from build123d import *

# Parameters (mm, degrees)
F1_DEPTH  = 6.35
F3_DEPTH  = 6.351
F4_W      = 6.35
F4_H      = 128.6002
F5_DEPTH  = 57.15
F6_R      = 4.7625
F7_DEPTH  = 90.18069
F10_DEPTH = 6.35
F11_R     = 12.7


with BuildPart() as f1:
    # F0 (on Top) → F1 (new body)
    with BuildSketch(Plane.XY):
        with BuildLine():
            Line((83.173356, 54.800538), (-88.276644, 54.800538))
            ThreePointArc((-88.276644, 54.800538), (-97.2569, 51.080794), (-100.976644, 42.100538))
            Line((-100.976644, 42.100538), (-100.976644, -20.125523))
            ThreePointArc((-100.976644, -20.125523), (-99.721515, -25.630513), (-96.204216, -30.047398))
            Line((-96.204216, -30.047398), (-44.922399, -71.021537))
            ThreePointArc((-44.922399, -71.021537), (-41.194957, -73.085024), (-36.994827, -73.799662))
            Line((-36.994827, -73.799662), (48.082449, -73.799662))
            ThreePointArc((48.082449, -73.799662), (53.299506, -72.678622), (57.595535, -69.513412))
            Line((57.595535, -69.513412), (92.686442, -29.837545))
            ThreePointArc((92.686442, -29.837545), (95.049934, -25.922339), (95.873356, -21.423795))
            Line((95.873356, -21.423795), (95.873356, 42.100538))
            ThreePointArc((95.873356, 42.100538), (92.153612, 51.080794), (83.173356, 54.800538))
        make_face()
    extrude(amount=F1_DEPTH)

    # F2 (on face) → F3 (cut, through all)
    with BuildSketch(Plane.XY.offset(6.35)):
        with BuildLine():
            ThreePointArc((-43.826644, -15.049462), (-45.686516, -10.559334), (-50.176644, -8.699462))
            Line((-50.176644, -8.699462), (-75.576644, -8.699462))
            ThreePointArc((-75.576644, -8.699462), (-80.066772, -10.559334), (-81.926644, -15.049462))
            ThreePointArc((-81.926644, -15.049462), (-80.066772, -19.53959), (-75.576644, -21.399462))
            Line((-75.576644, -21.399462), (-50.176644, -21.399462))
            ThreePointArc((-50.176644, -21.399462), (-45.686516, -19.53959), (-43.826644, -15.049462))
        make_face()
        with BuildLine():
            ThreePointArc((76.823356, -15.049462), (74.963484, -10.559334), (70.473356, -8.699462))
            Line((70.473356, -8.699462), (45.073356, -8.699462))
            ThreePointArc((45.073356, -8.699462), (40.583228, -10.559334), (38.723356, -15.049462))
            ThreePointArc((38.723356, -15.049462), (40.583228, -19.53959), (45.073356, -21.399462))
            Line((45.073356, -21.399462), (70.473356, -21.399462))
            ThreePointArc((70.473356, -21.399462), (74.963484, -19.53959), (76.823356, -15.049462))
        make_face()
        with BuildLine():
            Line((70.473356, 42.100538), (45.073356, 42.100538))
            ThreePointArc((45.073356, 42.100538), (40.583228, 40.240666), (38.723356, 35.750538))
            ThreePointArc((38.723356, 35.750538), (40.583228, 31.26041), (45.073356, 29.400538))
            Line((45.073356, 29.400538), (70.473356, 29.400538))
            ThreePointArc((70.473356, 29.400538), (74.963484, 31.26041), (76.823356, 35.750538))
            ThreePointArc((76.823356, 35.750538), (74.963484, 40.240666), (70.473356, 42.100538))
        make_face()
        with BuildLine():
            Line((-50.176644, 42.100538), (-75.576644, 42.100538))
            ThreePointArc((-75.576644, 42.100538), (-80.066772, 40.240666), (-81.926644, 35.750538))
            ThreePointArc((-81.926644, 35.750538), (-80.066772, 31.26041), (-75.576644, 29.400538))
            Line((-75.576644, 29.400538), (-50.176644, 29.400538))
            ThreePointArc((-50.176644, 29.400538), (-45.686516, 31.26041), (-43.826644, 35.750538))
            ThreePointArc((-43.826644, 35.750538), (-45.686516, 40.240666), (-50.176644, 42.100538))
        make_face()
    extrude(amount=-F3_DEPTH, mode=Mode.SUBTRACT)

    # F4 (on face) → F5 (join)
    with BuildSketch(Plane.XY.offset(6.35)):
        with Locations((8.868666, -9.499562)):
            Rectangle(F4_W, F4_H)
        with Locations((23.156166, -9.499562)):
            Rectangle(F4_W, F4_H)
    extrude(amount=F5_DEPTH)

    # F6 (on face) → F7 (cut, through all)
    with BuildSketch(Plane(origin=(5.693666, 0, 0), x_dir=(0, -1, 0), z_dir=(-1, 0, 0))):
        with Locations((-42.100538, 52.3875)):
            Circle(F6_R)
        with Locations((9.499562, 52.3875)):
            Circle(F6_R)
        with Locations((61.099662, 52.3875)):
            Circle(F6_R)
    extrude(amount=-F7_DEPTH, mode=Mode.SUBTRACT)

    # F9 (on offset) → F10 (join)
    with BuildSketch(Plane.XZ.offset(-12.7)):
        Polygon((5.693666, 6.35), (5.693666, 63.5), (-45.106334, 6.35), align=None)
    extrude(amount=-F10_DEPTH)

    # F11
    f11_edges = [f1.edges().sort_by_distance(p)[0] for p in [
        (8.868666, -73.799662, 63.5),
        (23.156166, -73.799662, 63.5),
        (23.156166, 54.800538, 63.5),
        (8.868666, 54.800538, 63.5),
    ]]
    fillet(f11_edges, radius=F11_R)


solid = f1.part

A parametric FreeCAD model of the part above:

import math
import FreeCAD as App
import Part
import Sketcher
Q = App.Units.Quantity


def edges_at(feature, points):
    """Names of the edges that pass closest to the given points."""
    edges = feature.Shape.Edges
    near = lambda p: min(range(len(edges)), key=lambda i: edges[i].distToShape(Part.Vertex(*p))[0])
    return sorted({f"Edge{near(p) + 1}" for p in points})


def add_polygon(sketch, points):
    """Adds a closed chain of lines whose ends are joined by coincident constraints."""
    first, n = sketch.GeometryCount, len(points)
    for a, b in zip(points, points[1:] + points[:1]):
        sketch.addGeometry(Part.LineSegment(App.Vector(*a, 0), App.Vector(*b, 0)), False)
    for i in range(n):
        sketch.addConstraint(Sketcher.Constraint("Coincident", first + i, 2, first + (i + 1) % n, 1))

doc = App.newDocument("Part")
body = doc.addObject("PartDesign::Body", "Body")

sketch1 = body.newObject("Sketcher::SketchObject", "Sketch")
sketch1.AttachmentSupport = (doc.getObject("XY_Plane"), [""])
sketch1.MapMode = "FlatFace"
sketch1.addGeometry([
    Part.LineSegment(App.Vector(83.173356, 54.800538, 0), App.Vector(-88.276644, 54.800538, 0)),
    Part.ArcOfCircle(Part.Circle(App.Vector(-88.276644, 42.100538, 0), App.Vector(0, 0, 1), 12.7), math.radians(90.000002), math.radians(179.999998)),
    Part.LineSegment(App.Vector(-100.976644, 42.100538, 0), App.Vector(-100.976644, -20.125523, 0)),
    Part.ArcOfCircle(Part.Circle(App.Vector(-88.276639, -20.125521, 0), App.Vector(0, 0, 1), 12.700005), math.radians(-179.99999), math.radians(-128.624844)),
    Part.LineSegment(App.Vector(-96.204216, -30.047398, 0), App.Vector(-44.922399, -71.021537, 0)),
    Part.ArcOfCircle(Part.Circle(App.Vector(-36.994826, -61.099658, 0), App.Vector(0, 0, 1), 12.700004), math.radians(-128.624826), math.radians(-90.000006)),
    Part.LineSegment(App.Vector(-36.994827, -73.799662, 0), App.Vector(48.082449, -73.799662, 0)),
    Part.ArcOfCircle(Part.Circle(App.Vector(48.082449, -61.099663, 0), App.Vector(0, 0, 1), 12.699999), math.radians(-90), math.radians(-41.490816)),
    Part.LineSegment(App.Vector(57.595535, -69.513412, 0), App.Vector(92.686442, -29.837545, 0)),
    Part.ArcOfCircle(Part.Circle(App.Vector(83.173359, -21.423796, 0), App.Vector(0, 0, 1), 12.699997), math.radians(-41.490825), math.radians(0.000004)),
    Part.LineSegment(App.Vector(95.873356, -21.423795, 0), App.Vector(95.873356, 42.100538, 0)),
    Part.ArcOfCircle(Part.Circle(App.Vector(83.173356, 42.100538, 0), App.Vector(0, 0, 1), 12.7), math.radians(0.000002), math.radians(89.999998)),
], False)
sketch1.addConstraint([
    Sketcher.Constraint("Coincident", 0, 2, 1, 1),
    Sketcher.Constraint("Coincident", 1, 2, 2, 1),
    Sketcher.Constraint("Coincident", 2, 2, 3, 1),
    Sketcher.Constraint("Coincident", 3, 2, 4, 1),
    Sketcher.Constraint("Coincident", 4, 2, 5, 1),
    Sketcher.Constraint("Coincident", 5, 2, 6, 1),
    Sketcher.Constraint("Coincident", 6, 2, 7, 1),
    Sketcher.Constraint("Coincident", 7, 2, 8, 1),
    Sketcher.Constraint("Coincident", 8, 2, 9, 1),
    Sketcher.Constraint("Coincident", 9, 2, 10, 1),
    Sketcher.Constraint("Coincident", 10, 2, 11, 1),
    Sketcher.Constraint("Coincident", 11, 2, 0, 1),
    Sketcher.Constraint("Horizontal", 0),
    Sketcher.Constraint("Vertical", 2),
    Sketcher.Constraint("Horizontal", 6),
    Sketcher.Constraint("Vertical", 10),
    Sketcher.Constraint("Radius", 1, Q("0.5 in")),
    Sketcher.Constraint("Radius", 3, Q("0.5000002 in")),
    Sketcher.Constraint("Radius", 5, Q("0.5000002 in")),
    Sketcher.Constraint("Radius", 7, Q("0.5 in")),
    Sketcher.Constraint("Radius", 9, Q("0.4999999 in")),
    Sketcher.Constraint("Radius", 11, Q("0.5 in")),
    Sketcher.Constraint("DistanceX", 0, 2, 0, 1, Q("6.75 in")),
    Sketcher.Constraint("DistanceX", 1, 2, 0, 2, Q("0.5 in")),
    Sketcher.Constraint("DistanceY", 1, 2, 0, 2, Q("0.5 in")),
    Sketcher.Constraint("DistanceX", 11, 2, 10, 2, Q("0.5 in")),
    Sketcher.Constraint("DistanceY", 10, 2, 11, 2, Q("0.5 in")),
    Sketcher.Constraint("DistanceY", 5, 3, 1, 3, Q("4.0629998 in")),
    Sketcher.Constraint("DistanceY", 3, 2, 2, 2, Q("0.390625 in")),
    Sketcher.Constraint("DistanceY", 3, 2, 3, 3, Q("0.3906251 in")),
    Sketcher.Constraint("DistanceY", 4, 2, 7, 3, Q("0.390625 in")),
    Sketcher.Constraint("DistanceY", 2, 2, 2, 1, Q("62.226061 mm")),
    Sketcher.Constraint("DistanceX", 4, 2, -1, 1, Q("44.922399 mm")),
    Sketcher.Constraint("DistanceX", 6, 1, 6, 2, Q("85.077276 mm")),
    Sketcher.Constraint("DistanceY", 10, 1, 10, 2, Q("63.524333 mm")),
    Sketcher.Constraint("DistanceX", 3, 3, -1, 1, Q("88.276639 mm")),
    Sketcher.Constraint("DistanceY", 3, 3, -1, 1, Q("20.125521 mm")),
    Sketcher.Constraint("DistanceX", -1, 1, 7, 3, Q("48.082449 mm")),
    Sketcher.Constraint("DistanceX", -1, 1, 6, 2, Q("48.082449 mm")),
    Sketcher.Constraint("DistanceX", -1, 1, 8, 2, Q("92.686442 mm")),
    Sketcher.Constraint("DistanceY", 5, 3, 9, 3, Q("39.675862 mm")),
    Sketcher.Constraint("DistanceY", 6, 2, 7, 2, Q("4.28625 mm")),
])
pad1 = body.newObject("PartDesign::Pad", "Pad")
pad1.Profile = sketch1
pad1.Length = Q("0.25 in")

sketch2 = body.newObject("Sketcher::SketchObject", "Sketch001")
sketch2.AttachmentSupport = (doc.getObject("XY_Plane"), [""])
sketch2.MapMode = "FlatFace"
sketch2.AttachmentOffset = App.Placement(App.Vector(0, 0, 0.25 * 25.4), App.Rotation())
sketch2.addGeometry([
    Part.ArcOfCircle(Part.Circle(App.Vector(-50.176644, -15.049462, 0), App.Vector(0, 0, 1), 6.35), math.radians(0.000002), math.radians(89.999998)),
    Part.LineSegment(App.Vector(-50.176644, -8.699462, 0), App.Vector(-75.576644, -8.699462, 0)),
    Part.ArcOfCircle(Part.Circle(App.Vector(-75.576644, -15.049462, 0), App.Vector(0, 0, 1), 6.35), math.radians(90.000002), math.radians(179.999998)),
    Part.ArcOfCircle(Part.Circle(App.Vector(-75.576644, -15.049462, 0), App.Vector(0, 0, 1), 6.35), math.radians(-179.999998), math.radians(-90.000002)),
    Part.LineSegment(App.Vector(-75.576644, -21.399462, 0), App.Vector(-50.176644, -21.399462, 0)),
    Part.ArcOfCircle(Part.Circle(App.Vector(-50.176644, -15.049462, 0), App.Vector(0, 0, 1), 6.35), math.radians(-89.999998), math.radians(-0.000002)),
    Part.ArcOfCircle(Part.Circle(App.Vector(70.473356, -15.049462, 0), App.Vector(0, 0, 1), 6.35), math.radians(0.000002), math.radians(89.999998)),
    Part.LineSegment(App.Vector(70.473356, -8.699462, 0), App.Vector(45.073356, -8.699462, 0)),
    Part.ArcOfCircle(Part.Circle(App.Vector(45.073356, -15.049462, 0), App.Vector(0, 0, 1), 6.35), math.radians(90.000002), math.radians(179.999998)),
    Part.ArcOfCircle(Part.Circle(App.Vector(45.073356, -15.049462, 0), App.Vector(0, 0, 1), 6.35), math.radians(-179.999998), math.radians(-90.000002)),
    Part.LineSegment(App.Vector(45.073356, -21.399462, 0), App.Vector(70.473356, -21.399462, 0)),
    Part.ArcOfCircle(Part.Circle(App.Vector(70.473356, -15.049462, 0), App.Vector(0, 0, 1), 6.35), math.radians(-89.999998), math.radians(-0.000002)),
    Part.LineSegment(App.Vector(70.473356, 42.100538, 0), App.Vector(45.073356, 42.100538, 0)),
    Part.ArcOfCircle(Part.Circle(App.Vector(45.073356, 35.750538, 0), App.Vector(0, 0, 1), 6.35), math.radians(90.000002), math.radians(179.999998)),
    Part.ArcOfCircle(Part.Circle(App.Vector(45.073356, 35.750538, 0), App.Vector(0, 0, 1), 6.35), math.radians(-179.999998), math.radians(-90.000002)),
    Part.LineSegment(App.Vector(45.073356, 29.400538, 0), App.Vector(70.473356, 29.400538, 0)),
    Part.ArcOfCircle(Part.Circle(App.Vector(70.473356, 35.750538, 0), App.Vector(0, 0, 1), 6.35), math.radians(-89.999998), math.radians(-0.000002)),
    Part.ArcOfCircle(Part.Circle(App.Vector(70.473356, 35.750538, 0), App.Vector(0, 0, 1), 6.35), math.radians(0.000002), math.radians(89.999998)),
    Part.LineSegment(App.Vector(-50.176644, 42.100538, 0), App.Vector(-75.576644, 42.100538, 0)),
    Part.ArcOfCircle(Part.Circle(App.Vector(-75.576644, 35.750538, 0), App.Vector(0, 0, 1), 6.35), math.radians(90.000002), math.radians(179.999998)),
    Part.ArcOfCircle(Part.Circle(App.Vector(-75.576644, 35.750538, 0), App.Vector(0, 0, 1), 6.35), math.radians(-179.999998), math.radians(-90.000002)),
    Part.LineSegment(App.Vector(-75.576644, 29.400538, 0), App.Vector(-50.176644, 29.400538, 0)),
    Part.ArcOfCircle(Part.Circle(App.Vector(-50.176644, 35.750538, 0), App.Vector(0, 0, 1), 6.35), math.radians(-89.999998), math.radians(-0.000002)),
    Part.ArcOfCircle(Part.Circle(App.Vector(-50.176644, 35.750538, 0), App.Vector(0, 0, 1), 6.35), math.radians(0.000002), math.radians(89.999998)),
], False)
sketch2.addConstraint([
    Sketcher.Constraint("Tangent", 0, 2, 1, 1),
    Sketcher.Constraint("Tangent", 1, 2, 2, 1),
    Sketcher.Constraint("Tangent", 2, 2, 3, 1),
    Sketcher.Constraint("Tangent", 3, 2, 4, 1),
    Sketcher.Constraint("Tangent", 4, 2, 5, 1),
    Sketcher.Constraint("Tangent", 5, 2, 0, 1),
    Sketcher.Constraint("Tangent", 6, 2, 7, 1),
    Sketcher.Constraint("Tangent", 7, 2, 8, 1),
    Sketcher.Constraint("Tangent", 8, 2, 9, 1),
    Sketcher.Constraint("Tangent", 9, 2, 10, 1),
    Sketcher.Constraint("Tangent", 10, 2, 11, 1),
    Sketcher.Constraint("Tangent", 11, 2, 6, 1),
    Sketcher.Constraint("Tangent", 12, 2, 13, 1),
    Sketcher.Constraint("Tangent", 13, 2, 14, 1),
    Sketcher.Constraint("Tangent", 14, 2, 15, 1),
    Sketcher.Constraint("Tangent", 15, 2, 16, 1),
    Sketcher.Constraint("Tangent", 16, 2, 17, 1),
    Sketcher.Constraint("Tangent", 17, 2, 12, 1),
    Sketcher.Constraint("Tangent", 18, 2, 19, 1),
    Sketcher.Constraint("Tangent", 19, 2, 20, 1),
    Sketcher.Constraint("Tangent", 20, 2, 21, 1),
    Sketcher.Constraint("Tangent", 21, 2, 22, 1),
    Sketcher.Constraint("Tangent", 22, 2, 23, 1),
    Sketcher.Constraint("Tangent", 23, 2, 18, 1),
    Sketcher.Constraint("Horizontal", 1),
    Sketcher.Constraint("Horizontal", 4),
    Sketcher.Constraint("Horizontal", 7),
    Sketcher.Constraint("Horizontal", 10),
    Sketcher.Constraint("Horizontal", 12),
    Sketcher.Constraint("Horizontal", 15),
    Sketcher.Constraint("Horizontal", 18),
    Sketcher.Constraint("Horizontal", 21),
    Sketcher.Constraint("Equal", 0, 2),
    Sketcher.Constraint("Equal", 2, 3),
    Sketcher.Constraint("Equal", 5, 6),
    Sketcher.Constraint("Equal", 6, 8),
    Sketcher.Constraint("Equal", 8, 9),
    Sketcher.Constraint("Equal", 11, 13),
    Sketcher.Constraint("Equal", 13, 14),
    Sketcher.Constraint("Equal", 14, 16),
    Sketcher.Constraint("Equal", 17, 19),
    Sketcher.Constraint("Equal", 19, 20),
    Sketcher.Constraint("Equal", 20, 22),
    Sketcher.Constraint("Horizontal", 5, 3, 6, 3),
    Sketcher.Constraint("Horizontal", 17, 3, 19, 3),
    Sketcher.Constraint("Horizontal", 11, 3, 2, 2),
    Sketcher.Constraint("Horizontal", 2, 2, 5, 2),
    Sketcher.Constraint("Horizontal", 5, 2, 8, 2),
    Sketcher.Constraint("Horizontal", 8, 2, 11, 2),
    Sketcher.Constraint("Horizontal", 23, 3, 13, 2),
    Sketcher.Constraint("Horizontal", 13, 2, 16, 2),
    Sketcher.Constraint("Horizontal", 16, 2, 19, 2),
    Sketcher.Constraint("Horizontal", 19, 2, 22, 2),
    Sketcher.Constraint("Vertical", 9, 3, 13, 3),
    Sketcher.Constraint("Vertical", 11, 3, 16, 3),
    Sketcher.Constraint("Vertical", 3, 3, 19, 3),
    Sketcher.Constraint("Vertical", 5, 3, 22, 3),
    Sketcher.Constraint("Equal", 4, 7),
    Sketcher.Constraint("DistanceX", 1, 2, 1, 1, Q("1 in")),
    Sketcher.Constraint("Radius", 0, Q("0.25 in")),
    Sketcher.Constraint("DistanceY", 9, 3, 13, 3, Q("2 in")),
    Sketcher.Constraint("DistanceX", 0, 3, 6, 3, Q("4.75 in")),
    Sketcher.Constraint("DistanceY", 3, 3, -1, 1, Q("15.049462 mm")),
    Sketcher.Constraint("DistanceX", 0, 3, -1, 1, Q("50.176644 mm")),
])
pocket1 = body.newObject("PartDesign::Pocket", "Pocket")
pocket1.Profile = sketch2
pocket1.Type = "ThroughAll"

sketch3 = body.newObject("Sketcher::SketchObject", "Sketch002")
sketch3.AttachmentSupport = (doc.getObject("XY_Plane"), [""])
sketch3.MapMode = "FlatFace"
sketch3.AttachmentOffset = App.Placement(App.Vector(0, 0, 0.25 * 25.4), App.Rotation())
add_polygon(sketch3, [(5.693666, 54.800538), (5.693666, -73.799662), (12.043666, -73.799662), (12.043666, 54.800538)])
add_polygon(sketch3, [(19.981166, 54.800538), (19.981166, -73.799662), (26.331166, -73.799662), (26.331166, 54.800538)])
sketch3.addConstraint([
    Sketcher.Constraint("Vertical", 0),
    Sketcher.Constraint("Horizontal", 1),
    Sketcher.Constraint("Vertical", 2),
    Sketcher.Constraint("Horizontal", 3),
    Sketcher.Constraint("Vertical", 4),
    Sketcher.Constraint("Horizontal", 5),
    Sketcher.Constraint("Vertical", 6),
    Sketcher.Constraint("Horizontal", 7),
    Sketcher.Constraint("Horizontal", 1, 2, 4, 2),
    Sketcher.Constraint("Horizontal", 3, 2, 6, 2),
    Sketcher.Constraint("Equal", 3, 5),
    Sketcher.Constraint("DistanceX", 1, 1, 1, 2, Q("0.25 in")),
    Sketcher.Constraint("DistanceY", 0, 2, 0, 1, Q("5.063 in")),
    Sketcher.Constraint("DistanceX", 1, 2, 4, 2, Q("0.3125 in")),
    Sketcher.Constraint("DistanceY", 0, 2, -1, 1, Q("73.799662 mm")),
    Sketcher.Constraint("DistanceX", -1, 1, 0, 2, Q("5.693666 mm")),
])
pad2 = body.newObject("PartDesign::Pad", "Pad001")
pad2.Profile = sketch3
pad2.Length = Q("2.25 in")

sketch4 = body.newObject("Sketcher::SketchObject", "Sketch003")
sketch4.AttachmentSupport = (doc.getObject("YZ_Plane"), [""])
sketch4.MapMode = "FlatFace"
sketch4.AttachmentOffset = App.Placement(App.Vector(0, 0, 5.693666), App.Rotation())
sketch4.addGeometry([
    Part.Circle(App.Vector(42.100538, 52.3875, 0), App.Vector(0, 0, 1), 4.7625),
    Part.Circle(App.Vector(-9.499562, 52.3875, 0), App.Vector(0, 0, 1), 4.7625),
    Part.Circle(App.Vector(-61.099662, 52.3875, 0), App.Vector(0, 0, 1), 4.7625),
], False)
sketch4.addConstraint([
    Sketcher.Constraint("Equal", 0, 1),
    Sketcher.Constraint("Equal", 1, 2),
    Sketcher.Constraint("Horizontal", 0, 3, 1, 3),
    Sketcher.Constraint("Horizontal", 1, 3, 2, 3),
    Sketcher.Constraint("Diameter", 0, Q("0.375 in")),
    Sketcher.Constraint("DistanceY", -1, 1, 0, 3, Q("2.0625 in")),
    Sketcher.Constraint("DistanceX", 2, 3, 0, 3, Q("4.063 in")),
    Sketcher.Constraint("DistanceX", 1, 3, 0, 3, Q("2.0315 in")),
    Sketcher.Constraint("DistanceX", 1, 3, -1, 1, Q("9.499562 mm")),
])
pocket2 = body.newObject("PartDesign::Pocket", "Pocket001")
pocket2.Profile = sketch4
pocket2.Type = "ThroughAll"
pocket2.Reversed = True

sketch5 = body.newObject("Sketcher::SketchObject", "Sketch004")
sketch5.AttachmentSupport = (doc.getObject("XZ_Plane"), [""])
sketch5.MapMode = "FlatFace"
sketch5.AttachmentOffset = App.Placement(App.Vector(0, 0, -0.5 * 25.4), App.Rotation())
add_polygon(sketch5, [(5.693666, 6.35), (5.693666, 63.5), (-45.106334, 6.35)])
sketch5.addConstraint([
    Sketcher.Constraint("Vertical", 0),
    Sketcher.Constraint("Horizontal", 2),
    Sketcher.Constraint("DistanceX", 2, 1, 2, 2, Q("2 in")),
    Sketcher.Constraint("DistanceY", 0, 1, 0, 2, Q("2.25 in")),
    Sketcher.Constraint("DistanceY", -1, 1, 0, 2, Q("2.5 in")),
    Sketcher.Constraint("DistanceX", -1, 1, 0, 2, Q("5.693666 mm")),
])
pad3 = body.newObject("PartDesign::Pad", "Pad002")
pad3.Profile = sketch5
pad3.Length = Q("0.25 in")
pad3.Reversed = True
doc.recompute()

fillet = body.newObject("PartDesign::Fillet", "Fillet")
fillet.Base = (pad3, edges_at(pad3, [
    (8.869, -73.8, 63.5),
    (23.156, -73.8, 63.5),
    (23.156, 54.801, 63.5),
    (8.869, 54.801, 63.5),
]))
fillet.Radius = Q("0.5 in")

doc.recompute()
